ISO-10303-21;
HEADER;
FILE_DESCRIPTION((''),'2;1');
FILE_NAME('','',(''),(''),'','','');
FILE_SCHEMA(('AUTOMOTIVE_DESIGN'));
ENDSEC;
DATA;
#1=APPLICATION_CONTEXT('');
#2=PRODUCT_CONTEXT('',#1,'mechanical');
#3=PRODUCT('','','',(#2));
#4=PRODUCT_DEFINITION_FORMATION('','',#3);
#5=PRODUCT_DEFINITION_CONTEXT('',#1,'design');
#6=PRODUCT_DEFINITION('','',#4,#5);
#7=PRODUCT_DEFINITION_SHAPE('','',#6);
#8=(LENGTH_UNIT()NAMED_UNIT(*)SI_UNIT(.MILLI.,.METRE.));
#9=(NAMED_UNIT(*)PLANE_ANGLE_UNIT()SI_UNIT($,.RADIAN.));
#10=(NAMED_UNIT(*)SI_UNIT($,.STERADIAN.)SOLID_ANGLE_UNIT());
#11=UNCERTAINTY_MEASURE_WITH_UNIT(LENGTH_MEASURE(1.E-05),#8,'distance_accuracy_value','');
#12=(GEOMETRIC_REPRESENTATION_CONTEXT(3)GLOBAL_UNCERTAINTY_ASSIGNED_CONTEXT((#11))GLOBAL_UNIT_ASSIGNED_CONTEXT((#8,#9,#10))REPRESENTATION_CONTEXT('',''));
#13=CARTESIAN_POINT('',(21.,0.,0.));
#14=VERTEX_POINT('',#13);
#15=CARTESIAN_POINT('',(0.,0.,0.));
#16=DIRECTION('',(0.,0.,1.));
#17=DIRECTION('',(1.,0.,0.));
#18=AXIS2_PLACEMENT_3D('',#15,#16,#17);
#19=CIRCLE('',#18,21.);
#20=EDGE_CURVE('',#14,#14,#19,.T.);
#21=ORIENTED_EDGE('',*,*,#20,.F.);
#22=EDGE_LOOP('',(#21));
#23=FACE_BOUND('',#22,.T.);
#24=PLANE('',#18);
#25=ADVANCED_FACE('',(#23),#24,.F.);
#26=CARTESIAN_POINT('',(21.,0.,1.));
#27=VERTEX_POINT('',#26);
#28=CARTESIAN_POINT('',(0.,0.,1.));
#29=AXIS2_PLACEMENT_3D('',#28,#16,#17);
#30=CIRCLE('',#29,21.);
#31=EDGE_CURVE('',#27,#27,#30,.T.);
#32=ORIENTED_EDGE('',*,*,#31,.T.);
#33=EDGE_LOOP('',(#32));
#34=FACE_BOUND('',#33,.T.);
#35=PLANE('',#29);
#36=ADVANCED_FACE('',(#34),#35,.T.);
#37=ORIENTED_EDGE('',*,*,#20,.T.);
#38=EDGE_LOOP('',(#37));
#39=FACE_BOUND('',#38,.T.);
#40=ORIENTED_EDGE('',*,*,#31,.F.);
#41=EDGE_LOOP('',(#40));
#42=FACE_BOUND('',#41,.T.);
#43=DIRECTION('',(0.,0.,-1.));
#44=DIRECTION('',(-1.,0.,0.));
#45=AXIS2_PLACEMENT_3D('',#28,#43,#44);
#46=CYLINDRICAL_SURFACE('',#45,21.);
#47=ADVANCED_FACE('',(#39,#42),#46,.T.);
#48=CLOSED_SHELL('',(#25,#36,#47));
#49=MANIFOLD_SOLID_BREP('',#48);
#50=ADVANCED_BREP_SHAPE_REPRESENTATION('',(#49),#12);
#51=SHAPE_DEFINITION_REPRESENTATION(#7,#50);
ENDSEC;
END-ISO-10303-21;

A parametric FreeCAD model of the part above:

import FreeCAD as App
import Part
import Sketcher
from FreeCAD import Vector

doc = App.newDocument("Part")
body = doc.addObject("PartDesign::Body", "Body")

# Sketch on XY plane
sketch1 = body.newObject("Sketcher::SketchObject", "Sketch")
sketch1.AttachmentSupport = (doc.getObject("XY_Plane"), [""])
sketch1.MapMode = "FlatFace"
sketch1.addGeometry(Part.Circle(Vector(0, 0, 0), Vector(0, 0, 1), 21), False)
sketch1.addConstraint([
    Sketcher.Constraint("Coincident", 0, 3, -1, 1),
    Sketcher.Constraint("Diameter", 0, 42.0),
])
pad1 = body.newObject("PartDesign::Pad", "Pad")
pad1.Profile = sketch1
pad1.Length = 1

doc.recompute()
